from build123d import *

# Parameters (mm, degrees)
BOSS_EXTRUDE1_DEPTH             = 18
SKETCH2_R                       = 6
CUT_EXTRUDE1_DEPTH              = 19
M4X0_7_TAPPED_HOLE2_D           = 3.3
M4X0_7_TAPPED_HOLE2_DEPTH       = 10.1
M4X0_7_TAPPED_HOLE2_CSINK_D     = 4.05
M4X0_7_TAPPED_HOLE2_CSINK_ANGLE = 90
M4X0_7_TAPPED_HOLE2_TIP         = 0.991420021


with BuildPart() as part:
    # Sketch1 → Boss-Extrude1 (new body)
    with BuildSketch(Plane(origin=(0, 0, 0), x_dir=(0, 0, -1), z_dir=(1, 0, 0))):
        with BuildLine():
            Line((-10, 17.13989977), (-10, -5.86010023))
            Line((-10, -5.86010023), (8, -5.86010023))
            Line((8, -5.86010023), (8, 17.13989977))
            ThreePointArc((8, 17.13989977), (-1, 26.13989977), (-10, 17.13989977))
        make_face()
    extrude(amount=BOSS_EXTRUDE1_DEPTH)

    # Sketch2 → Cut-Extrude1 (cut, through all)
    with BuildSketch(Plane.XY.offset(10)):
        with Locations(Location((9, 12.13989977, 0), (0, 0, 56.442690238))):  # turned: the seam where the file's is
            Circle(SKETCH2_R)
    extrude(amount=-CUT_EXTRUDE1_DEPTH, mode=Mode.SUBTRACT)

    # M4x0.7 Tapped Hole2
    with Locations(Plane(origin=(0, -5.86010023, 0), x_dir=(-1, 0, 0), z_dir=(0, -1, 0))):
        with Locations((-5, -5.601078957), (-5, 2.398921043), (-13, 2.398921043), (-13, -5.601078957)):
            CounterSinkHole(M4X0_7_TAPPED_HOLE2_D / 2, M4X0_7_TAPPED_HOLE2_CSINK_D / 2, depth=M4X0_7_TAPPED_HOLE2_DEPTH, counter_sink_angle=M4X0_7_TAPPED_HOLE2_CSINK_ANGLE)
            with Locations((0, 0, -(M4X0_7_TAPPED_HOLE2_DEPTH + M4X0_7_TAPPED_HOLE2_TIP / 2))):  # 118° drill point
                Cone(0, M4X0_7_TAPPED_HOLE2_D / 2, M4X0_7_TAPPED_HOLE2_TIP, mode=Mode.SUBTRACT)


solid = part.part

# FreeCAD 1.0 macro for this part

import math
import FreeCAD as App
import Part
import Sketcher
from FreeCAD import Vector
Q = App.Units.Quantity

doc = App.newDocument("Part")
body = doc.addObject("PartDesign::Body", "Body")

# Sketch on YZ plane
sketch1 = body.newObject("Sketcher::SketchObject", "Sketch")
sketch1.AttachmentSupport = (doc.getObject("YZ_Plane"), [""])
sketch1.MapMode = "FlatFace"
sketch1.addGeometry(Part.LineSegment(Vector(17, 10, 0), Vector(-6, 10, 0)), False)
sketch1.addGeometry(Part.LineSegment(Vector(-6, 10, 0), Vector(-6, -8, 0)), False)
sketch1.addGeometry(Part.LineSegment(Vector(-6, -8, 0), Vector(17, -8, 0)), False)
sketch1.addGeometry(Part.ArcOfCircle(Part.Circle(Vector(17, 1, 0), Vector(0, 0, 1), 9), math.radians(-90), math.radians(90)), False)
sketch1.addConstraint(Sketcher.Constraint("Coincident", 0, 2, 1, 1))
sketch1.addConstraint(Sketcher.Constraint("Coincident", 1, 2, 2, 1))
sketch1.addConstraint(Sketcher.Constraint("Tangent", 2, 2, 3, 1))
sketch1.addConstraint(Sketcher.Constraint("Tangent", 3, 2, 0, 1))
sketch1.addConstraint(Sketcher.Constraint("Horizontal", 0))
sketch1.addConstraint(Sketcher.Constraint("Vertical", 1))
sketch1.addConstraint(Sketcher.Constraint("Horizontal", 2))
sketch1.addConstraint(Sketcher.Constraint("Radius", 3, Q("9 mm")))
sketch1.addConstraint(Sketcher.Constraint("DistanceX", 0, 2, 0, 1, Q("23 mm")))
sketch1.addConstraint(Sketcher.Constraint("DistanceY", -1, 1, 3, 3, Q("1 mm")))
sketch1.addConstraint(Sketcher.Constraint("DistanceX", -1, 1, 3, 3, Q("17.1399 mm")))
pad1 = body.newObject("PartDesign::Pad", "Pad")
pad1.Profile = sketch1
pad1.Length = 18

# Sketch on XY plane
sketch2 = body.newObject("Sketcher::SketchObject", "Sketch001")
sketch2.AttachmentSupport = (doc.getObject("XY_Plane"), [""])
sketch2.MapMode = "FlatFace"
sketch2.AttachmentOffset = App.Placement(Vector(0, 0, 10), App.Rotation())
sketch2.addGeometry(Part.Circle(Vector(9, 12, 0), Vector(0, 0, 1), 6), False)
sketch2.addConstraint(Sketcher.Constraint("Diameter", 0, Q("12 mm")))
sketch2.addConstraint(Sketcher.Constraint("DistanceX", -1, 1, 0, 3, Q("9 mm")))
sketch2.addConstraint(Sketcher.Constraint("DistanceY", -1, 1, 0, 3, Q("12.1399 mm")))
pocket1 = body.newObject("PartDesign::Pocket", "Pocket")
pocket1.Profile = sketch2
pocket1.Type = "ThroughAll"

# Sketch on XZ plane
sketch3 = body.newObject("Sketcher::SketchObject", "Sketch002")
sketch3.AttachmentSupport = (doc.getObject("XZ_Plane"), [""])
sketch3.MapMode = "FlatFace"
sketch3.AttachmentOffset = App.Placement(Vector(0, 0, 5.8601), App.Rotation())
sketch3.addGeometry(Part.Circle(Vector(5, 5.6, 0), Vector(0, 0, 1), 1.6), False)
sketch3.addGeometry(Part.Circle(Vector(5, -2.4, 0), Vector(0, 0, 1), 1.6), False)
sketch3.addGeometry(Part.Circle(Vector(13, -2.4, 0), Vector(0, 0, 1), 1.6), False)
sketch3.addGeometry(Part.Circle(Vector(13, 5.6, 0), Vector(0, 0, 1), 1.6), False)
sketch3.addConstraint(Sketcher.Constraint("Equal", 0, 1))
sketch3.addConstraint(Sketcher.Constraint("Equal", 1, 2))
sketch3.addConstraint(Sketcher.Constraint("Equal", 2, 3))
sketch3.addConstraint(Sketcher.Constraint("Horizontal", 1, 3, 2, 3))
sketch3.addConstraint(Sketcher.Constraint("Horizontal", 0, 3, 3, 3))
sketch3.addConstraint(Sketcher.Constraint("Vertical", 0, 3, 1, 3))
sketch3.addConstraint(Sketcher.Constraint("Vertical", 2, 3, 3, 3))
sketch3.addConstraint(Sketcher.Constraint("Diameter", 0, Q("3.3 mm")))
sketch3.addConstraint(Sketcher.Constraint("DistanceX", -1, 1, 0, 3, Q("5 mm")))
sketch3.addConstraint(Sketcher.Constraint("DistanceX", -1, 1, 2, 3, Q("13 mm")))
sketch3.addConstraint(Sketcher.Constraint("DistanceY", 1, 3, 0, 3, Q("8 mm")))
sketch3.addConstraint(Sketcher.Constraint("DistanceY", -1, 1, 0, 3, Q("5.601079 mm")))
doc.recompute()
hole = body.newObject("PartDesign::Hole", "Hole")
hole.Profile = sketch3
hole.ThreadType = "None"
hole.Diameter = 3.3
hole.DepthType = "Dimension"
hole.Depth = 10.1
hole.DrillPoint = "Angled"
hole.DrillPointAngle = 118
hole.HoleCutType = "Countersink"
hole.HoleCutDiameter = 4.05
hole.HoleCutCountersinkAngle = 90

doc.recompute()
